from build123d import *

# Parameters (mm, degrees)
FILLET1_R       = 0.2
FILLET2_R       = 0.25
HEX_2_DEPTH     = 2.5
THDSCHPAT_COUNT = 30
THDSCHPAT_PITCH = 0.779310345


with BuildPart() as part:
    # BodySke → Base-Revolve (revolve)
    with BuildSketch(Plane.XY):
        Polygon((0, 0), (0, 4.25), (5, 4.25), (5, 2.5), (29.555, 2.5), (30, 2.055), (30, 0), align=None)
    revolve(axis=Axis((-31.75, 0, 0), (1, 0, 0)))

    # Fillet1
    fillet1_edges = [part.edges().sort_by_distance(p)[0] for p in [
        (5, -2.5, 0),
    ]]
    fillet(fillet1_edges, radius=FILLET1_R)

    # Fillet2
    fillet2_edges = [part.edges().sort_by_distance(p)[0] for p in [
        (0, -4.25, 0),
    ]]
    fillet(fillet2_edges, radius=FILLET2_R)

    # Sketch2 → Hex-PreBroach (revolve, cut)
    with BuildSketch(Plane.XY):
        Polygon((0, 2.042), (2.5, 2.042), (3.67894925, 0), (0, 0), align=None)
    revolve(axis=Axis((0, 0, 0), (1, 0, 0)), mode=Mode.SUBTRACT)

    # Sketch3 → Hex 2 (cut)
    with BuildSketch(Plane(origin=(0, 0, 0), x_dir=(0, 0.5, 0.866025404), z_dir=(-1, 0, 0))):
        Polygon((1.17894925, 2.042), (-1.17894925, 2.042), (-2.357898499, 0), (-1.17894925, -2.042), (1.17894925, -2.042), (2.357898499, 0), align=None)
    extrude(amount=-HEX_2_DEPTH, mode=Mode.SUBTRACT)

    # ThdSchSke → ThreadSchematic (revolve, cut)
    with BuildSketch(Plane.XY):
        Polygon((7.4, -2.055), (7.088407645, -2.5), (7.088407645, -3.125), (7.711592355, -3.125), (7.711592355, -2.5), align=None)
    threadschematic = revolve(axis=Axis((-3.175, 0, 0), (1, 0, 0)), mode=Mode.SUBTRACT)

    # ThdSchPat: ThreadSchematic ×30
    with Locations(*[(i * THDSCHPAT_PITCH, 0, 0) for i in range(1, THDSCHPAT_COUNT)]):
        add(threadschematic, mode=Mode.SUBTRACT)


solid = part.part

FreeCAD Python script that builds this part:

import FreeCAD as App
import Part
import Sketcher
Q = App.Units.Quantity


def edges_at(feature, points):
    """Names of the edges that pass closest to the given points."""
    edges = feature.Shape.Edges
    near = lambda p: min(range(len(edges)), key=lambda i: edges[i].distToShape(Part.Vertex(*p))[0])
    return sorted({f"Edge{near(p) + 1}" for p in points})

doc = App.newDocument("Part")
body = doc.addObject("PartDesign::Body", "Body")

# Sketch on XY plane
sketch1 = doc.addObject("Sketcher::SketchObject", "Sketch")
body.addObject(sketch1)
sketch1.AttachmentSupport = (doc.XY_Plane, [""])
sketch1.MapMode = "FlatFace"
sketch1.addGeometry(Part.LineSegment(App.Vector(0, 4.2, 0), App.Vector(0, 0, 0)), False)
sketch1.addGeometry(Part.LineSegment(App.Vector(0, 0, 0), App.Vector(30, 0, 0)), False)
sketch1.addGeometry(Part.LineSegment(App.Vector(30, 0, 0), App.Vector(30, 2.1, 0)), False)
sketch1.addGeometry(Part.LineSegment(App.Vector(30, 2.1, 0), App.Vector(29.6, 2.5, 0)), False)
sketch1.addGeometry(Part.LineSegment(App.Vector(29.6, 2.5, 0), App.Vector(5, 2.5, 0)), False)
sketch1.addGeometry(Part.LineSegment(App.Vector(5, 2.5, 0), App.Vector(5, 4.2, 0)), False)
sketch1.addGeometry(Part.LineSegment(App.Vector(5, 4.2, 0), App.Vector(0, 4.2, 0)), False)
sketch1.addConstraint(Sketcher.Constraint("Coincident", 0, 2, 1, 1))
sketch1.addConstraint(Sketcher.Constraint("Coincident", 1, 2, 2, 1))
sketch1.addConstraint(Sketcher.Constraint("Coincident", 2, 2, 3, 1))
sketch1.addConstraint(Sketcher.Constraint("Coincident", 3, 2, 4, 1))
sketch1.addConstraint(Sketcher.Constraint("Coincident", 4, 2, 5, 1))
sketch1.addConstraint(Sketcher.Constraint("Coincident", 5, 2, 6, 1))
sketch1.addConstraint(Sketcher.Constraint("Coincident", 6, 2, 0, 1))
sketch1.addConstraint(Sketcher.Constraint("Vertical", 0))
sketch1.addConstraint(Sketcher.Constraint("Horizontal", 1))
sketch1.addConstraint(Sketcher.Constraint("Vertical", 2))
sketch1.addConstraint(Sketcher.Constraint("Horizontal", 4))
sketch1.addConstraint(Sketcher.Constraint("Vertical", 5))
sketch1.addConstraint(Sketcher.Constraint("Horizontal", 6))
sketch1.addConstraint(Sketcher.Constraint("Coincident", 0, 2, -1, 1))
sketch1.addConstraint(Sketcher.Constraint("DistanceX", 1, 1, 1, 2, 30.0))
sketch1.addConstraint(Sketcher.Constraint("DistanceX", 6, 2, 6, 1, 5.0))
sketch1.addConstraint(Sketcher.Constraint("Angle", 3, Q("135 deg")))
sketch1.addConstraint(Sketcher.Constraint("DistanceY", 0, 2, 0, 1, 4.25))
sketch1.addConstraint(Sketcher.Constraint("DistanceY", 5, 1, 5, 2, 1.75))
sketch1.addConstraint(Sketcher.Constraint("DistanceX", 4, 2, 4, 1, 24.555))
revolution = doc.addObject("PartDesign::Revolution", "Revolution")
body.addObject(revolution)
revolution.Profile = sketch1
revolution.ReferenceAxis = (sketch1, ["H_Axis"])
revolution.Angle = 360
doc.recompute()

fillet = doc.addObject("PartDesign::Fillet", "Fillet")
body.addObject(fillet)
fillet.Base = (revolution, edges_at(revolution, [(5, -2.5, 0)]))
fillet.Radius = 0.2
doc.recompute()

fillet2 = doc.addObject("PartDesign::Fillet", "Fillet001")
body.addObject(fillet2)
fillet2.Base = (fillet, edges_at(fillet, [(0, -4.25, 0)]))
fillet2.Radius = 0.25

# Sketch on XY plane
sketch2 = doc.addObject("Sketcher::SketchObject", "Sketch001")
body.addObject(sketch2)
sketch2.AttachmentSupport = (doc.XY_Plane, [""])
sketch2.MapMode = "FlatFace"
sketch2.addGeometry(Part.LineSegment(App.Vector(2.5, 2, 0), App.Vector(0, 2, 0)), False)
sketch2.addGeometry(Part.LineSegment(App.Vector(0, 2, 0), App.Vector(0, 0, 0)), False)
sketch2.addGeometry(Part.LineSegment(App.Vector(0, 0, 0), App.Vector(3.7, 0, 0)), False)
sketch2.addGeometry(Part.LineSegment(App.Vector(3.7, 0, 0), App.Vector(2.5, 2, 0)), False)
sketch2.addConstraint(Sketcher.Constraint("Coincident", 0, 2, 1, 1))
sketch2.addConstraint(Sketcher.Constraint("Coincident", 1, 2, 2, 1))
sketch2.addConstraint(Sketcher.Constraint("Coincident", 2, 2, 3, 1))
sketch2.addConstraint(Sketcher.Constraint("Coincident", 3, 2, 0, 1))
sketch2.addConstraint(Sketcher.Constraint("Horizontal", 0))
sketch2.addConstraint(Sketcher.Constraint("Vertical", 1))
sketch2.addConstraint(Sketcher.Constraint("Horizontal", 2))
sketch2.addConstraint(Sketcher.Constraint("Coincident", 1, 2, -1, 1))
sketch2.addConstraint(Sketcher.Constraint("Angle", 3, Q("120 deg")))
sketch2.addConstraint(Sketcher.Constraint("DistanceX", 0, 2, 0, 1, 2.5))
sketch2.addConstraint(Sketcher.Constraint("DistanceY", 1, 2, 1, 1, 2.042))
groove = doc.addObject("PartDesign::Groove", "Groove")
body.addObject(groove)
groove.Profile = sketch2
groove.ReferenceAxis = (sketch2, ["H_Axis"])
groove.Angle = 360

# Sketch on YZ plane
sketch3 = doc.addObject("Sketcher::SketchObject", "Sketch002")
body.addObject(sketch3)
sketch3.AttachmentSupport = (doc.YZ_Plane, [""])
sketch3.MapMode = "FlatFace"
sketch3.addGeometry(Part.LineSegment(App.Vector(2.4, 0, 0), App.Vector(1.2, -2, 0)), False)
sketch3.addGeometry(Part.LineSegment(App.Vector(1.2, -2, 0), App.Vector(-1.2, -2, 0)), False)
sketch3.addGeometry(Part.LineSegment(App.Vector(-1.2, -2, 0), App.Vector(-2.4, 0, 0)), False)
sketch3.addGeometry(Part.LineSegment(App.Vector(-2.4, 0, 0), App.Vector(-1.2, 2, 0)), False)
sketch3.addGeometry(Part.LineSegment(App.Vector(-1.2, 2, 0), App.Vector(1.2, 2, 0)), False)
sketch3.addGeometry(Part.LineSegment(App.Vector(1.2, 2, 0), App.Vector(2.4, 0, 0)), False)
sketch3.addConstraint(Sketcher.Constraint("Coincident", 0, 2, 1, 1))
sketch3.addConstraint(Sketcher.Constraint("Coincident", 1, 2, 2, 1))
sketch3.addConstraint(Sketcher.Constraint("Coincident", 2, 2, 3, 1))
sketch3.addConstraint(Sketcher.Constraint("Coincident", 3, 2, 4, 1))
sketch3.addConstraint(Sketcher.Constraint("Coincident", 4, 2, 5, 1))
sketch3.addConstraint(Sketcher.Constraint("Coincident", 5, 2, 0, 1))
sketch3.addConstraint(Sketcher.Constraint("Horizontal", 1))
sketch3.addConstraint(Sketcher.Constraint("Horizontal", 4))
sketch3.addConstraint(Sketcher.Constraint("Symmetric", 0, 2, 3, 2, -1, 1))
sketch3.addConstraint(Sketcher.Constraint("Symmetric", 2, 2, 5, 2, -1, 1))
sketch3.addConstraint(Sketcher.Constraint("PointOnObject", 2, 2, -1))
sketch3.addConstraint(Sketcher.Constraint("Parallel", 2, 5))
sketch3.addConstraint(Sketcher.Constraint("Vertical", 1, 2, 3, 2))
sketch3.addConstraint(Sketcher.Constraint("Angle", 0, Q("-120 deg")))
sketch3.addConstraint(Sketcher.Constraint("DistanceX", 1, 2, 1, 1, 2.357899))
sketch3.addConstraint(Sketcher.Constraint("DistanceY", 0, 2, -1, 1, 2.042))
pocket1 = doc.addObject("PartDesign::Pocket", "Pocket")
body.addObject(pocket1)
pocket1.Profile = sketch3
pocket1.Length = 2.5
pocket1.Reversed = True

# Sketch on XY plane
sketch4 = doc.addObject("Sketcher::SketchObject", "Sketch003")
body.addObject(sketch4)
sketch4.AttachmentSupport = (doc.XY_Plane, [""])
sketch4.MapMode = "FlatFace"
sketch4.addGeometry(Part.LineSegment(App.Vector(7.4, -2.1, 0), App.Vector(7.1, -2.5, 0)), False)
sketch4.addGeometry(Part.LineSegment(App.Vector(7.1, -2.5, 0), App.Vector(7.1, -3.1, 0)), False)
sketch4.addGeometry(Part.LineSegment(App.Vector(7.1, -3.1, 0), App.Vector(7.7, -3.1, 0)), False)
sketch4.addGeometry(Part.LineSegment(App.Vector(7.7, -3.1, 0), App.Vector(7.7, -2.5, 0)), False)
sketch4.addGeometry(Part.LineSegment(App.Vector(7.7, -2.5, 0), App.Vector(7.4, -2.1, 0)), False)
sketch4.addConstraint(Sketcher.Constraint("Coincident", 0, 2, 1, 1))
sketch4.addConstraint(Sketcher.Constraint("Coincident", 1, 2, 2, 1))
sketch4.addConstraint(Sketcher.Constraint("Coincident", 2, 2, 3, 1))
sketch4.addConstraint(Sketcher.Constraint("Coincident", 3, 2, 4, 1))
sketch4.addConstraint(Sketcher.Constraint("Coincident", 4, 2, 0, 1))
sketch4.addConstraint(Sketcher.Constraint("Vertical", 1))
sketch4.addConstraint(Sketcher.Constraint("Horizontal", 2))
sketch4.addConstraint(Sketcher.Constraint("Vertical", 3))
sketch4.addConstraint(Sketcher.Constraint("Horizontal", 0, 2, 3, 2))
sketch4.addConstraint(Sketcher.Constraint("Equal", 0, 4))
sketch4.addConstraint(Sketcher.Constraint("Angle", 0, Q("-125 deg")))
sketch4.addConstraint(Sketcher.Constraint("DistanceY", 0, 2, -1, 1, 2.5))
sketch4.addConstraint(Sketcher.Constraint("DistanceX", -1, 1, 4, 2, 7.4))
sketch4.addConstraint(Sketcher.Constraint("DistanceY", 1, 2, 1, 1, 0.625))
sketch4.addConstraint(Sketcher.Constraint("DistanceY", 2, 2, 4, 2, 1.07))
groove2 = doc.addObject("PartDesign::Groove", "Groove001")
body.addObject(groove2)
groove2.Profile = sketch4
groove2.ReferenceAxis = (sketch4, ["H_Axis"])
groove2.Angle = 360
doc.recompute()

linearpattern = doc.addObject("PartDesign::LinearPattern", "LinearPattern")
body.addObject(linearpattern)
linearpattern.Originals = [groove2]
linearpattern.Direction = (doc.X_Axis, [""])
linearpattern.Mode = "offset"
linearpattern.Offset = 0.77931
linearpattern.Occurrences = 30
body.Tip = linearpattern

doc.recompute()
